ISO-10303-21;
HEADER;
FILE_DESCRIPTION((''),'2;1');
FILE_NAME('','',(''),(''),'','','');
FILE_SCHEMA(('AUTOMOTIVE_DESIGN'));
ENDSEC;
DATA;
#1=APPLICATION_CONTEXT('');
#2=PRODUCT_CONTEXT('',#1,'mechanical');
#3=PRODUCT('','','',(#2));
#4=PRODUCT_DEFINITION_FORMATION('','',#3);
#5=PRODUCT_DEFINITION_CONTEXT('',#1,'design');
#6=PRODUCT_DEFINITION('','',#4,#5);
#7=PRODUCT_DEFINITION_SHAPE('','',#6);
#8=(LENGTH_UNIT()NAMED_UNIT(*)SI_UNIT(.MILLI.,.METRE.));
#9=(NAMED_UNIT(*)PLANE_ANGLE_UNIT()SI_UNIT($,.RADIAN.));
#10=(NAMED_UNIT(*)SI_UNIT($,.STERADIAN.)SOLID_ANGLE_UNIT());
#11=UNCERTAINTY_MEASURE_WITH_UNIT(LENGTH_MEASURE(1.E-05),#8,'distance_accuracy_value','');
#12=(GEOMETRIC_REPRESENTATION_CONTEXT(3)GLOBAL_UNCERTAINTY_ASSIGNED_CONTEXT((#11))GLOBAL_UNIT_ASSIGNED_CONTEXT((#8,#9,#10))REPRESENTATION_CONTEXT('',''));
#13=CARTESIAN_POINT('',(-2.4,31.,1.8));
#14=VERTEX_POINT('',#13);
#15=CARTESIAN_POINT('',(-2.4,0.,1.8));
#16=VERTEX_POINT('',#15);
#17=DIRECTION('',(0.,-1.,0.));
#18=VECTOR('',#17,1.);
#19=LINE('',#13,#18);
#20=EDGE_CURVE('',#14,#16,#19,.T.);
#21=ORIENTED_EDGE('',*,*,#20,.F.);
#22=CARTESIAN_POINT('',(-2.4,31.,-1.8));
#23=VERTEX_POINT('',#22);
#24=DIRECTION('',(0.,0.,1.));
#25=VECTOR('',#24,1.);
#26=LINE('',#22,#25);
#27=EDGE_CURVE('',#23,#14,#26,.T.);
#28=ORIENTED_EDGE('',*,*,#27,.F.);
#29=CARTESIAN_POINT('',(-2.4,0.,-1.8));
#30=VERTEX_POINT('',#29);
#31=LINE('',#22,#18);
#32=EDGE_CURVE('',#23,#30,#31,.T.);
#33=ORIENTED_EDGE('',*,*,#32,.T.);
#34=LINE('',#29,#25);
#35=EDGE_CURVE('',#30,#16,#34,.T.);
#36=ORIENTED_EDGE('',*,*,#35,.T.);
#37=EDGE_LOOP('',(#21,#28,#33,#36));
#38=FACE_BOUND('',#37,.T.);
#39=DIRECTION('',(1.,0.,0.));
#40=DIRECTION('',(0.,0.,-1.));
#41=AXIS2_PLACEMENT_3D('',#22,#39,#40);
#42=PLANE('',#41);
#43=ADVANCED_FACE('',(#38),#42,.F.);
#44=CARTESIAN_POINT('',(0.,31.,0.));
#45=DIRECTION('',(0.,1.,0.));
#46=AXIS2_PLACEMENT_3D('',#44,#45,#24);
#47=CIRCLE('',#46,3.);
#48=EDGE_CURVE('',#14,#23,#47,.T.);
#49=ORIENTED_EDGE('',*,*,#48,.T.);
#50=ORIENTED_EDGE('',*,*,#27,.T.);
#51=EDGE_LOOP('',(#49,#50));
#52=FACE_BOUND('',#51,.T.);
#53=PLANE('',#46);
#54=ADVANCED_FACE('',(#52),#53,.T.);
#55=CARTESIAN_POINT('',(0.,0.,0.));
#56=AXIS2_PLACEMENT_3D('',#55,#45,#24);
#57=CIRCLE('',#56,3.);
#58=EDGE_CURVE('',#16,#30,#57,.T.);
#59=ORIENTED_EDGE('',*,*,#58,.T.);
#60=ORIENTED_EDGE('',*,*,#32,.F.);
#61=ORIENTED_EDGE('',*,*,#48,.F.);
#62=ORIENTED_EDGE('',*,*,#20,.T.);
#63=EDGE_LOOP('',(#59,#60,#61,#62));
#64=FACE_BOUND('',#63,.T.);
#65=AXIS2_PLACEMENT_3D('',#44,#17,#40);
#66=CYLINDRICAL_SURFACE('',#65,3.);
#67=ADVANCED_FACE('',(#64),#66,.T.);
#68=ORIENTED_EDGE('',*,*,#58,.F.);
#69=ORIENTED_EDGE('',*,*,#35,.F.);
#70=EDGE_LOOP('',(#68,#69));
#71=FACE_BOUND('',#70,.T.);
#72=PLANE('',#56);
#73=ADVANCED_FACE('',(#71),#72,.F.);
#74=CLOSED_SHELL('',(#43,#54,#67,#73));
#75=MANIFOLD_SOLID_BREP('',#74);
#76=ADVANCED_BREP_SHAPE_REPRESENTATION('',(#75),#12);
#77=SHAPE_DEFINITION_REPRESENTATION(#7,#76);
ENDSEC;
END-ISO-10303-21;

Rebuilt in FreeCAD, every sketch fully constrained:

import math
import FreeCAD as App
import Part
import Sketcher

V = App.Vector

doc = App.newDocument("Part")
body = doc.addObject("PartDesign::Body", "Body")

# Sketch on XZ plane
sketch1 = body.newObject("Sketcher::SketchObject", "Sketch")
sketch1.AttachmentSupport = (doc.getObject("XZ_Plane"), [""])
sketch1.MapMode = "FlatFace"
sketch1.addGeometry(Part.LineSegment(V(-2.4, -1.8, 0), V(-2.4, 1.8, 0)), False)
sketch1.addGeometry(Part.ArcOfCircle(Part.Circle(V(0, 0, 0), V(0, 0, 1), 3), math.radians(-143), math.radians(143)), False)
sketch1.addConstraint(Sketcher.Constraint("Coincident", 0, 1, 1, 1))
sketch1.addConstraint(Sketcher.Constraint("Coincident", 1, 2, 0, 2))
sketch1.addConstraint(Sketcher.Constraint("Vertical", 0))
sketch1.addConstraint(Sketcher.Constraint("Coincident", 1, 3, -1, 1))
sketch1.addConstraint(Sketcher.Constraint("Radius", 1, 3.0))
sketch1.addConstraint(Sketcher.Constraint("DistanceY", 0, 1, 0, 2, 3.6))
pad1 = body.newObject("PartDesign::Pad", "Pad")
pad1.Profile = sketch1
pad1.Length = 31
pad1.Reversed = True

doc.recompute()
